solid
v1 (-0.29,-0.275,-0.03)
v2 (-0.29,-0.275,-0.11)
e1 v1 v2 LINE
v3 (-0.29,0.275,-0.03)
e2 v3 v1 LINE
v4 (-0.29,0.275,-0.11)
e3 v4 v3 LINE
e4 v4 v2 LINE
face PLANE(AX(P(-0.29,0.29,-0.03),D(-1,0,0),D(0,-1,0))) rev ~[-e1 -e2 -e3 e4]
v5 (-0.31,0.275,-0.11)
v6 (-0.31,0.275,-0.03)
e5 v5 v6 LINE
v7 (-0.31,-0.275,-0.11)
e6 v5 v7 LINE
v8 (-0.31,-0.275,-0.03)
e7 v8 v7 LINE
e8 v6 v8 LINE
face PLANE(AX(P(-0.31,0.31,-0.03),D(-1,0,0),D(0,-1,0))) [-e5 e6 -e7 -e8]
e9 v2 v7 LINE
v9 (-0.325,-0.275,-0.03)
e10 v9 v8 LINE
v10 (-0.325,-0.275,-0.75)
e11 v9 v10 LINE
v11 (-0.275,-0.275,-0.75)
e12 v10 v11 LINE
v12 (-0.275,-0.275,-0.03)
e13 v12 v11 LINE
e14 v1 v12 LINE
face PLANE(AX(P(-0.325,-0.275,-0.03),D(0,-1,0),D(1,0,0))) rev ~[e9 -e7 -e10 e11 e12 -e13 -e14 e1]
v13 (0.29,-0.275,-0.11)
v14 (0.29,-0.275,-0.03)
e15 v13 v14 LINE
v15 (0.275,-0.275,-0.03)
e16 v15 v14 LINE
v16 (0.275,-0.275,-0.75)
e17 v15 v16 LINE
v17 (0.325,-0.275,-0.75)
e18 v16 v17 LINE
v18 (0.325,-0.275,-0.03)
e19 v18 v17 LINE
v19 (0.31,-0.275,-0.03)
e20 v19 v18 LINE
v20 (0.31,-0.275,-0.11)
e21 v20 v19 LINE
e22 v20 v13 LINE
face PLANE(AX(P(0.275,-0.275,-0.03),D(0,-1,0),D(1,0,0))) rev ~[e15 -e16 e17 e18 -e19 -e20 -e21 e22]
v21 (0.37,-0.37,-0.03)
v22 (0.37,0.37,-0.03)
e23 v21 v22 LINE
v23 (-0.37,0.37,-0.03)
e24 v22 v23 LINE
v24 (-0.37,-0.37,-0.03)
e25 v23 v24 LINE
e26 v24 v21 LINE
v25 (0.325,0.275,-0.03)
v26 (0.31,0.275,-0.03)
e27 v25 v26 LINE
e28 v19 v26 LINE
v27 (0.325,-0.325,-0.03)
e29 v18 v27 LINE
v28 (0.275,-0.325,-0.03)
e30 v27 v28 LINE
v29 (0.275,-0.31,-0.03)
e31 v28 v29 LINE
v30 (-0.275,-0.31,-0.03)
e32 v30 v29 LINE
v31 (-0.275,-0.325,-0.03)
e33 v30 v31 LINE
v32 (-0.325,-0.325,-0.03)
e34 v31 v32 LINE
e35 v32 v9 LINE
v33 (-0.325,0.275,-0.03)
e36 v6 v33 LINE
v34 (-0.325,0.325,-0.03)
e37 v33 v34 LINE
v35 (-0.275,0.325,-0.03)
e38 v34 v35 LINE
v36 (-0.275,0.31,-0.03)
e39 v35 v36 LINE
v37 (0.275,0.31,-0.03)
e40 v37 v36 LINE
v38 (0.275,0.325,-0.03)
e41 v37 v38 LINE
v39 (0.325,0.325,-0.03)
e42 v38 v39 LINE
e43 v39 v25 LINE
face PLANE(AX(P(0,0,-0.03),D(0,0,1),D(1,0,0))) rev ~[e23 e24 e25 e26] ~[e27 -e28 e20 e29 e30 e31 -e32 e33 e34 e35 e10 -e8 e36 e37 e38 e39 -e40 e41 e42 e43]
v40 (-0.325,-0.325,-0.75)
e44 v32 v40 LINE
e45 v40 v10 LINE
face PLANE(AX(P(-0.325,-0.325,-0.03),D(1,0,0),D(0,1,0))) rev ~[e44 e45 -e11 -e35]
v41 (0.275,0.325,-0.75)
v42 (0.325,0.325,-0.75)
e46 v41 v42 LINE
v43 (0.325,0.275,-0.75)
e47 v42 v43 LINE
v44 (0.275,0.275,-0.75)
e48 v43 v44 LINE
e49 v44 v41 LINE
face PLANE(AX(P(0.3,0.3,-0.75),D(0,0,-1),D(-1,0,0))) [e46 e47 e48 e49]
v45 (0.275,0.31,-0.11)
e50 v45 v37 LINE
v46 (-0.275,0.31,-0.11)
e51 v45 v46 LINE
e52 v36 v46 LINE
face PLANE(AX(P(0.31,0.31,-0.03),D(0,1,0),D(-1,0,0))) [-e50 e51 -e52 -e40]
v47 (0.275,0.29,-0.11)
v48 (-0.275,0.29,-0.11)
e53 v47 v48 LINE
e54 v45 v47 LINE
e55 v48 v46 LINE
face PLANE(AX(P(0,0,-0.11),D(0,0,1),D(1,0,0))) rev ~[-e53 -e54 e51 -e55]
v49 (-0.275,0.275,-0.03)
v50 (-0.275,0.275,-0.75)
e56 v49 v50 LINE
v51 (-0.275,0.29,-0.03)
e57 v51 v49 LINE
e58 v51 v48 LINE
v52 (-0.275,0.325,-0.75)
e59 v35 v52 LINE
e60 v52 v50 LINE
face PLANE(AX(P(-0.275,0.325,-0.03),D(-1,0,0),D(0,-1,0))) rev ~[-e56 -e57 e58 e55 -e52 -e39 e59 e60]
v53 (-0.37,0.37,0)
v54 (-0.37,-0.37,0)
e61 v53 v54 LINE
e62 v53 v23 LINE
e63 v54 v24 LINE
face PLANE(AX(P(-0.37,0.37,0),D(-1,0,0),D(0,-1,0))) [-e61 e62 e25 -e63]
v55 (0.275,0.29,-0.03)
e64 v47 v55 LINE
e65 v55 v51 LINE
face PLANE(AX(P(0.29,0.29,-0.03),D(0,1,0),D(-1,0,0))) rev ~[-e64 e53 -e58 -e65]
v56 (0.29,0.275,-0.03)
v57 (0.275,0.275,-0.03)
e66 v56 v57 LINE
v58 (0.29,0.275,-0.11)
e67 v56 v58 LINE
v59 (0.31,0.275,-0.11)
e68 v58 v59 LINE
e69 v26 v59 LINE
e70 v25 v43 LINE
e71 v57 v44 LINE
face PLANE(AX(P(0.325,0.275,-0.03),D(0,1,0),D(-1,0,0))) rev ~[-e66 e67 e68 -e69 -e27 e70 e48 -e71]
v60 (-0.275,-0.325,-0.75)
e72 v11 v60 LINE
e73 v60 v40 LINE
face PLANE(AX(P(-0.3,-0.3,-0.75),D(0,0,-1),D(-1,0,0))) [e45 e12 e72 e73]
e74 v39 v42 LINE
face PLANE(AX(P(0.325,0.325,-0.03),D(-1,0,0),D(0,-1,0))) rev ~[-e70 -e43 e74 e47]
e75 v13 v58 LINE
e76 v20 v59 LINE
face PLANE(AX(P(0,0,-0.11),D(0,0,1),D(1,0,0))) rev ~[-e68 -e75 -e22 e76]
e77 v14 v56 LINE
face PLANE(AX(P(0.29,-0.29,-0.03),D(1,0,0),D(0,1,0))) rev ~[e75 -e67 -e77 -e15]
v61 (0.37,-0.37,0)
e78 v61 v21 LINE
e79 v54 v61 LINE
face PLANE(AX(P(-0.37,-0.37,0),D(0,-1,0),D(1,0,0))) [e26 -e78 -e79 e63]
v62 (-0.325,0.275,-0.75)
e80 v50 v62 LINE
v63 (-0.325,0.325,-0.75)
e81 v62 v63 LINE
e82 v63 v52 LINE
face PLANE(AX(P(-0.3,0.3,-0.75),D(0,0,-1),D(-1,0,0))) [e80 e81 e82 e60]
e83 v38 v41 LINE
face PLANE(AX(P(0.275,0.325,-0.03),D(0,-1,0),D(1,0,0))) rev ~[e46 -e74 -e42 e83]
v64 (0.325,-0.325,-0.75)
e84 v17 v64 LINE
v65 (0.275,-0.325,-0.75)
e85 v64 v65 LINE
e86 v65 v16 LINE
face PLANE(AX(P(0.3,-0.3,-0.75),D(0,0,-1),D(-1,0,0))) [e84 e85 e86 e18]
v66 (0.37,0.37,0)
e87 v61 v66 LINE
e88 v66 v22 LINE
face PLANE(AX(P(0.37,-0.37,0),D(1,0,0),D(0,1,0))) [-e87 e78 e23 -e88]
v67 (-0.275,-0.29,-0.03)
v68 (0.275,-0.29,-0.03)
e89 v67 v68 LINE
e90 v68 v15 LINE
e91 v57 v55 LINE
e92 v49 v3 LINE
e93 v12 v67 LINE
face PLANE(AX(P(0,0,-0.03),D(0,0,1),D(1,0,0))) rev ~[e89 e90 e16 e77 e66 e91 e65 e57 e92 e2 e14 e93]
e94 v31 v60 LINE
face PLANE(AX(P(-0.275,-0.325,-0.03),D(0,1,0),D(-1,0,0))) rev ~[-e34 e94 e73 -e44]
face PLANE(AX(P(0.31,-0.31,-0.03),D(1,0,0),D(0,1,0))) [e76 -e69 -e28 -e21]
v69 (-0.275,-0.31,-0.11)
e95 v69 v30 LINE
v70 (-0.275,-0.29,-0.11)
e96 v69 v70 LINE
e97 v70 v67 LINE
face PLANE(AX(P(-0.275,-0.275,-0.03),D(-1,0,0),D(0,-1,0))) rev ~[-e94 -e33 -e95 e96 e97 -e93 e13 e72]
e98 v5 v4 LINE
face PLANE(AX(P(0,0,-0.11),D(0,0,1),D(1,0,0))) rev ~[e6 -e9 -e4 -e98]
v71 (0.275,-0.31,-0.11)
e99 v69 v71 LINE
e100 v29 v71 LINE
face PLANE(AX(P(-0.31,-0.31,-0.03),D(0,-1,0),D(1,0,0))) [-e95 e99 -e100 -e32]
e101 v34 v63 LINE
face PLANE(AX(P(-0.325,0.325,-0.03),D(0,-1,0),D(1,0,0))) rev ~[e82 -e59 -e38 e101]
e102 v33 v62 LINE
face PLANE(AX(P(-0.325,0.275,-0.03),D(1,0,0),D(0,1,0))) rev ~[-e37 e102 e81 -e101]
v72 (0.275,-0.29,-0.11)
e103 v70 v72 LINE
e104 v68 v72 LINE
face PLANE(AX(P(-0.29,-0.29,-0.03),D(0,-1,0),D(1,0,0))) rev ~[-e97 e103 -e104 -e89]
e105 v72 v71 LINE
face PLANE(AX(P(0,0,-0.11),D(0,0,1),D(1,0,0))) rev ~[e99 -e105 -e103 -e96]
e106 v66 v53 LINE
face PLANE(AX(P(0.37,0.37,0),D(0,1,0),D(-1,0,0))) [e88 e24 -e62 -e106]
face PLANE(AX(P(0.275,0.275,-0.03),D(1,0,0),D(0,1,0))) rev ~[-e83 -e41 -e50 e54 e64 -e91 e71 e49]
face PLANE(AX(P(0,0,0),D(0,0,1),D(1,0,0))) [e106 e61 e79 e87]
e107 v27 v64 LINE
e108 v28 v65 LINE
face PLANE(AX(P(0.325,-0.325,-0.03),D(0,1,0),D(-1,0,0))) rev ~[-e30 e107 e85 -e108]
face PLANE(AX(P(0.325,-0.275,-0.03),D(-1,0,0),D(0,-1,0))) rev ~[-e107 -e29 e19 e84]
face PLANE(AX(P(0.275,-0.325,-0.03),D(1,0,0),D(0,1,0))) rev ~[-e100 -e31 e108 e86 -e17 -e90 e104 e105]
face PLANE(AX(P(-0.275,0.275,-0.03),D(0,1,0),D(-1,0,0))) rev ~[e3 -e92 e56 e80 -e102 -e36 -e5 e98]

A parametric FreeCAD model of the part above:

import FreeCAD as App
import Part
import Sketcher
Q = App.Units.Quantity

doc = App.newDocument("Part")
body = doc.addObject("PartDesign::Body", "Body")

# Sketch on XY plane
sketch1 = doc.addObject("Sketcher::SketchObject", "Sketch")
body.addObject(sketch1)
sketch1.AttachmentSupport = (doc.XY_Plane, [""])
sketch1.MapMode = "FlatFace"
sketch1.addGeometry([
    Part.LineSegment(App.Vector(-0.4, 0.4, 0), App.Vector(-0.4, -0.4, 0)),
    Part.LineSegment(App.Vector(-0.4, -0.4, 0), App.Vector(0.4, -0.4, 0)),
    Part.LineSegment(App.Vector(0.4, -0.4, 0), App.Vector(0.4, 0.4, 0)),
    Part.LineSegment(App.Vector(0.4, 0.4, 0), App.Vector(-0.4, 0.4, 0)),
], False)
sketch1.addConstraint([
    Sketcher.Constraint("Coincident", 0, 2, 1, 1),
    Sketcher.Constraint("Coincident", 1, 2, 2, 1),
    Sketcher.Constraint("Coincident", 2, 2, 3, 1),
    Sketcher.Constraint("Coincident", 3, 2, 0, 1),
    Sketcher.Constraint("Vertical", 0),
    Sketcher.Constraint("Horizontal", 1),
    Sketcher.Constraint("Vertical", 2),
    Sketcher.Constraint("Horizontal", 3),
    Sketcher.Constraint("Symmetric", 0, 2, 2, 2, -1, 1),
    Sketcher.Constraint("Equal", 3, 0),
    Sketcher.Constraint("DistanceX", 0, 2, -1, 1, Q("0.37 mm")),
])
pad1 = doc.addObject("PartDesign::Pad", "Pad")
body.addObject(pad1)
pad1.Profile = sketch1
pad1.Length = 0.03
pad1.Reversed = True

# Sketch on XY plane
sketch2 = doc.addObject("Sketcher::SketchObject", "Sketch001")
body.addObject(sketch2)
sketch2.AttachmentSupport = (doc.XY_Plane, [""])
sketch2.MapMode = "FlatFace"
sketch2.AttachmentOffset = App.Placement(App.Vector(0, 0, -0.03), App.Rotation())
sketch2.addGeometry([
    Part.LineSegment(App.Vector(-0.33, 0.28, 0), App.Vector(-0.33, 0.33, 0)),  # 0
    Part.LineSegment(App.Vector(-0.33, 0.33, 0), App.Vector(-0.28, 0.33, 0)),  # 1
    Part.LineSegment(App.Vector(-0.28, 0.33, 0), App.Vector(-0.28, 0.28, 0)),  # 2
    Part.LineSegment(App.Vector(-0.28, 0.28, 0), App.Vector(-0.33, 0.28, 0)),  # 3
    Part.LineSegment(App.Vector(0.28, 0.28, 0), App.Vector(0.28, 0.33, 0)),  # 4
    Part.LineSegment(App.Vector(0.28, 0.33, 0), App.Vector(0.33, 0.33, 0)),  # 5
    Part.LineSegment(App.Vector(0.33, 0.33, 0), App.Vector(0.33, 0.28, 0)),  # 6
    Part.LineSegment(App.Vector(0.33, 0.28, 0), App.Vector(0.28, 0.28, 0)),  # 7
    Part.LineSegment(App.Vector(0.28, -0.33, 0), App.Vector(0.28, -0.28, 0)),  # 8
    Part.LineSegment(App.Vector(0.28, -0.28, 0), App.Vector(0.33, -0.28, 0)),  # 9
    Part.LineSegment(App.Vector(0.33, -0.28, 0), App.Vector(0.33, -0.33, 0)),  # 10
    Part.LineSegment(App.Vector(0.33, -0.33, 0), App.Vector(0.28, -0.33, 0)),  # 11
    Part.LineSegment(App.Vector(-0.33, -0.33, 0), App.Vector(-0.33, -0.28, 0)),  # 12
    Part.LineSegment(App.Vector(-0.33, -0.28, 0), App.Vector(-0.28, -0.28, 0)),  # 13
    Part.LineSegment(App.Vector(-0.28, -0.28, 0), App.Vector(-0.28, -0.33, 0)),  # 14
    Part.LineSegment(App.Vector(-0.28, -0.33, 0), App.Vector(-0.33, -0.33, 0)),  # 15
], False)
sketch2.addConstraint([
    Sketcher.Constraint("Coincident", 0, 2, 1, 1),
    Sketcher.Constraint("Coincident", 1, 2, 2, 1),
    Sketcher.Constraint("Coincident", 2, 2, 3, 1),
    Sketcher.Constraint("Coincident", 3, 2, 0, 1),
    Sketcher.Constraint("Coincident", 4, 2, 5, 1),
    Sketcher.Constraint("Coincident", 5, 2, 6, 1),
    Sketcher.Constraint("Coincident", 6, 2, 7, 1),
    Sketcher.Constraint("Coincident", 7, 2, 4, 1),
    Sketcher.Constraint("Coincident", 8, 2, 9, 1),
    Sketcher.Constraint("Coincident", 9, 2, 10, 1),
    Sketcher.Constraint("Coincident", 10, 2, 11, 1),
    Sketcher.Constraint("Coincident", 11, 2, 8, 1),
    Sketcher.Constraint("Coincident", 12, 2, 13, 1),
    Sketcher.Constraint("Coincident", 13, 2, 14, 1),
    Sketcher.Constraint("Coincident", 14, 2, 15, 1),
    Sketcher.Constraint("Coincident", 15, 2, 12, 1),
    Sketcher.Constraint("Vertical", 0),
    Sketcher.Constraint("Horizontal", 1),
    Sketcher.Constraint("Vertical", 2),
    Sketcher.Constraint("Horizontal", 3),
    Sketcher.Constraint("Vertical", 4),
    Sketcher.Constraint("Horizontal", 5),
    Sketcher.Constraint("Vertical", 6),
    Sketcher.Constraint("Horizontal", 7),
    Sketcher.Constraint("Vertical", 8),
    Sketcher.Constraint("Horizontal", 9),
    Sketcher.Constraint("Vertical", 10),
    Sketcher.Constraint("Horizontal", 11),
    Sketcher.Constraint("Vertical", 12),
    Sketcher.Constraint("Horizontal", 13),
    Sketcher.Constraint("Vertical", 14),
    Sketcher.Constraint("Horizontal", 15),
    Sketcher.Constraint("Symmetric", 2, 2, 8, 2, -1, 1),
    Sketcher.Constraint("Symmetric", 0, 2, 10, 2, -1, 1),
    Sketcher.Constraint("Symmetric", 6, 2, 12, 2, -1, 1),
    Sketcher.Constraint("Symmetric", 4, 2, 14, 2, -1, 1),
    Sketcher.Constraint("Symmetric", 1, 2, 4, 2, -2),
    Sketcher.Constraint("Symmetric", 3, 2, 6, 2, -2),
    Sketcher.Constraint("Equal", 15, 0),
    Sketcher.Constraint("DistanceX", 1, 2, -1, 1, Q("0.275 mm")),
    Sketcher.Constraint("DistanceY", -1, 1, 2, 2, Q("0.275 mm")),
    Sketcher.Constraint("DistanceX", 1, 1, 1, 2, Q("0.05 mm")),
])
pad2 = doc.addObject("PartDesign::Pad", "Pad001")
body.addObject(pad2)
pad2.Profile = sketch2
pad2.Length = 0.72
pad2.Reversed = True

# Sketch on XY plane
sketch3 = doc.addObject("Sketcher::SketchObject", "Sketch002")
body.addObject(sketch3)
sketch3.AttachmentSupport = (doc.XY_Plane, [""])
sketch3.MapMode = "FlatFace"
sketch3.AttachmentOffset = App.Placement(App.Vector(0, 0, -0.03), App.Rotation())
sketch3.addGeometry([
    Part.LineSegment(App.Vector(0.3, -0.3, 0), App.Vector(-0.3, -0.3, 0)),  # 0
    Part.LineSegment(App.Vector(-0.3, -0.3, 0), App.Vector(-0.3, 0.3, 0)),  # 1
    Part.LineSegment(App.Vector(-0.3, 0.3, 0), App.Vector(0.3, 0.3, 0)),  # 2
    Part.LineSegment(App.Vector(0.3, 0.3, 0), App.Vector(0.3, -0.3, 0)),  # 3
    Part.LineSegment(App.Vector(-0.3, 0.3, 0), App.Vector(-0.3, -0.3, 0)),  # 4
    Part.LineSegment(App.Vector(-0.3, -0.3, 0), App.Vector(0.3, -0.3, 0)),  # 5
    Part.LineSegment(App.Vector(0.3, -0.3, 0), App.Vector(0.3, 0.3, 0)),  # 6
    Part.LineSegment(App.Vector(0.3, 0.3, 0), App.Vector(-0.3, 0.3, 0)),  # 7
], False)
sketch3.addConstraint([
    Sketcher.Constraint("Coincident", 0, 2, 1, 1),
    Sketcher.Constraint("Coincident", 1, 2, 2, 1),
    Sketcher.Constraint("Coincident", 2, 2, 3, 1),
    Sketcher.Constraint("Coincident", 3, 2, 0, 1),
    Sketcher.Constraint("Coincident", 4, 2, 5, 1),
    Sketcher.Constraint("Coincident", 5, 2, 6, 1),
    Sketcher.Constraint("Coincident", 6, 2, 7, 1),
    Sketcher.Constraint("Coincident", 7, 2, 4, 1),
    Sketcher.Constraint("Horizontal", 0),
    Sketcher.Constraint("Vertical", 1),
    Sketcher.Constraint("Horizontal", 2),
    Sketcher.Constraint("Vertical", 3),
    Sketcher.Constraint("Vertical", 4),
    Sketcher.Constraint("Horizontal", 5),
    Sketcher.Constraint("Vertical", 6),
    Sketcher.Constraint("Horizontal", 7),
    Sketcher.Constraint("Symmetric", 0, 2, 2, 2, -1, 1),
    Sketcher.Constraint("Symmetric", 4, 2, 6, 2, -1, 1),
    Sketcher.Constraint("Equal", 2, 1),
    Sketcher.Constraint("Equal", 7, 4),
    Sketcher.Constraint("DistanceX", 0, 2, 0, 1, Q("0.62 mm")),
    Sketcher.Constraint("DistanceX", 5, 1, 5, 2, Q("0.58 mm")),
])
pad3 = doc.addObject("PartDesign::Pad", "Pad002")
body.addObject(pad3)
pad3.Profile = sketch3
pad3.Length = 0.08
pad3.Reversed = True

doc.recompute()
